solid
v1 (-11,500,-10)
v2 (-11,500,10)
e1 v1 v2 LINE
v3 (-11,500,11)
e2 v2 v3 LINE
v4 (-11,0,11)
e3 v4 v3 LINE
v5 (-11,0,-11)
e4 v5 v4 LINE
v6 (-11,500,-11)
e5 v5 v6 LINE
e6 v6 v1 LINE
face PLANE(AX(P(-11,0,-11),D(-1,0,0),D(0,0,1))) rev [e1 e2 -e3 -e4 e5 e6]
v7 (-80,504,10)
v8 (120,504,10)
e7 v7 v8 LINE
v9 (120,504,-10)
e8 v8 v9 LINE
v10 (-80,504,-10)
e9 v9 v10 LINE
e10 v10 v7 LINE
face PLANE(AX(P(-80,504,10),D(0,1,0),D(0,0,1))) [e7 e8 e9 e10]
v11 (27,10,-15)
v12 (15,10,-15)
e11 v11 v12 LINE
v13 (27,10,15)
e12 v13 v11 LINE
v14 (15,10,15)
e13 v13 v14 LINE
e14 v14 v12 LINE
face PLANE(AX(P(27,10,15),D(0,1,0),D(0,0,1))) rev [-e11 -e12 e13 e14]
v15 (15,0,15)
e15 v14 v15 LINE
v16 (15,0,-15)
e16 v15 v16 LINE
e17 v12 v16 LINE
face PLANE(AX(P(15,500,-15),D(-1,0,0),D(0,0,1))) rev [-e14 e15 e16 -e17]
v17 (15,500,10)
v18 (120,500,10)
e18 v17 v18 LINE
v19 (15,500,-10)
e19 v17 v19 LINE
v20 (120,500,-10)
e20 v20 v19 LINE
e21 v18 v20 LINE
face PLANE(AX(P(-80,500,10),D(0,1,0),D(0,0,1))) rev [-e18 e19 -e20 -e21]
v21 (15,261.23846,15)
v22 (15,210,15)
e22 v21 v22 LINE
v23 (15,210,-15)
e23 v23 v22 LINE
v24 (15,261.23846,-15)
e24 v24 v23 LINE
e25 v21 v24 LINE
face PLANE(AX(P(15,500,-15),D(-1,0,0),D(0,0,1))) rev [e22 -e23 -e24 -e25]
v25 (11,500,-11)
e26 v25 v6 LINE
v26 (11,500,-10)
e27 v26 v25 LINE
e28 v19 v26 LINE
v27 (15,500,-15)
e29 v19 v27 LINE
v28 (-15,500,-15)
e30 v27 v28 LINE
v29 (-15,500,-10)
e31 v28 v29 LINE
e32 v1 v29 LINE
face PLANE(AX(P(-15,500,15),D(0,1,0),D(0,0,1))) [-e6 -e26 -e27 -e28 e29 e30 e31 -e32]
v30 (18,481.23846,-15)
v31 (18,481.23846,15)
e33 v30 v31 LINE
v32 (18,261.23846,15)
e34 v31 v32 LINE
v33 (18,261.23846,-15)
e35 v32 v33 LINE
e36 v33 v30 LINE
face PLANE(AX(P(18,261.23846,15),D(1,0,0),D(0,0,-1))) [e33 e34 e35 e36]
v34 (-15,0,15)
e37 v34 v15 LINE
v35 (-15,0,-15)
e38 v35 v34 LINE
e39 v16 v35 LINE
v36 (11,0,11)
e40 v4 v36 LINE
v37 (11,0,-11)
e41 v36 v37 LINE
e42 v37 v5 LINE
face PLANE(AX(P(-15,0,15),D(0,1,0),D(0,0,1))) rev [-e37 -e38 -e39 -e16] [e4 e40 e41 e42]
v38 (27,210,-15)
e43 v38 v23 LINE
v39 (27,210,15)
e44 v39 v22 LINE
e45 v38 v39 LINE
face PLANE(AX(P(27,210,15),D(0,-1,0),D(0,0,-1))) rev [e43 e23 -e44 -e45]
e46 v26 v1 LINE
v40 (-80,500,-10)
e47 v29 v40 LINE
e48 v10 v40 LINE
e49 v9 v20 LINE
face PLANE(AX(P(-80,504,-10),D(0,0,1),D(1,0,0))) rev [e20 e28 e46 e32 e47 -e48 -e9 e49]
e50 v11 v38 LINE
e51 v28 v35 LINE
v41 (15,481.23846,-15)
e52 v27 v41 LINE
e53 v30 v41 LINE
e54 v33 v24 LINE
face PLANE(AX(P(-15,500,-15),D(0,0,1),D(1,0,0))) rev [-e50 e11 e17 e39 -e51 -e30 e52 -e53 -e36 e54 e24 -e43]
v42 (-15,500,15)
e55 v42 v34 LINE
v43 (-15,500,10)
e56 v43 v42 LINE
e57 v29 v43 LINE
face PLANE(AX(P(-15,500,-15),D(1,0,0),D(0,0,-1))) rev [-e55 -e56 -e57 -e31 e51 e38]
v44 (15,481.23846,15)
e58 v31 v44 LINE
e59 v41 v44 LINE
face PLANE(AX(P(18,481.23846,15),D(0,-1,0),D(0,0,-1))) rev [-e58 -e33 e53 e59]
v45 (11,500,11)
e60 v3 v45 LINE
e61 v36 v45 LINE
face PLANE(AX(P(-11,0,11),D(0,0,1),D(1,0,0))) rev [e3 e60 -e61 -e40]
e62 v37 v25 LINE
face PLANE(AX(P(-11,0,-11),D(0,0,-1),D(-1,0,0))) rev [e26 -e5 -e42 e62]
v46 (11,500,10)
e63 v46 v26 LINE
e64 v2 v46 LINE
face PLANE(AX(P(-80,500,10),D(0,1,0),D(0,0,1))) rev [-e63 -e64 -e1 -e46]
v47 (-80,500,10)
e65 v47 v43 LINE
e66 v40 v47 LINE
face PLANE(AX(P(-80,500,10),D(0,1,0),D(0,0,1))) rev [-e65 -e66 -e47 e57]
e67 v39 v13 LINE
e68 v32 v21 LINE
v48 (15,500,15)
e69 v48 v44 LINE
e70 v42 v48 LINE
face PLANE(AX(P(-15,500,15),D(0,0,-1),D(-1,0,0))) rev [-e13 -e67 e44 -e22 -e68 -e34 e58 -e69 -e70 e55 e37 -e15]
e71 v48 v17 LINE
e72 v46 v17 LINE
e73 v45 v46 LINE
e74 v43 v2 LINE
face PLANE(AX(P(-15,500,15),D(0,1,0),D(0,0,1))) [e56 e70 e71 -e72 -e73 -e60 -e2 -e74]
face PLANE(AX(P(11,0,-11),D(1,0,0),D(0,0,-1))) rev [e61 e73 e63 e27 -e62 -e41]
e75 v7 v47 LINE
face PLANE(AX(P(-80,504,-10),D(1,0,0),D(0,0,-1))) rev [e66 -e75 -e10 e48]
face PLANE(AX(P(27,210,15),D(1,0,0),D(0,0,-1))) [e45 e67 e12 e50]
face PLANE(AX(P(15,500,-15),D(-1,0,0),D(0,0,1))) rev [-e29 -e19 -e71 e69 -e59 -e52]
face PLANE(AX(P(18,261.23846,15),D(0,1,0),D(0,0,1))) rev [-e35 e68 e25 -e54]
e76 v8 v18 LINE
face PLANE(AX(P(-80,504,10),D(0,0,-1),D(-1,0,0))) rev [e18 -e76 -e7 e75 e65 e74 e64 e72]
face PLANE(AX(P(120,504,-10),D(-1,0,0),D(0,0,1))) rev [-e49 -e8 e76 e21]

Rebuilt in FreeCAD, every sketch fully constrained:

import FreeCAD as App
import Part
import Sketcher
from FreeCAD import Vector

doc = App.newDocument("Part")
body = doc.addObject("PartDesign::Body", "Body")

sketch1 = body.newObject("Sketcher::SketchObject", "Sketch")
sketch1.AttachmentSupport = (doc.getObject("XZ_Plane"), [""])
sketch1.MapMode = "FlatFace"
sketch1.addGeometry([
    Part.LineSegment(Vector(-15, -15, 0), Vector(-15, 15, 0)),
    Part.LineSegment(Vector(-15, 15, 0), Vector(15, 15, 0)),
    Part.LineSegment(Vector(15, 15, 0), Vector(15, -15, 0)),
    Part.LineSegment(Vector(15, -15, 0), Vector(-15, -15, 0)),
], False)
sketch1.addConstraint([
    Sketcher.Constraint("Coincident", 0, 2, 1, 1),
    Sketcher.Constraint("Coincident", 1, 2, 2, 1),
    Sketcher.Constraint("Coincident", 2, 2, 3, 1),
    Sketcher.Constraint("Coincident", 3, 2, 0, 1),
    Sketcher.Constraint("Vertical", 0),
    Sketcher.Constraint("Horizontal", 1),
    Sketcher.Constraint("Vertical", 2),
    Sketcher.Constraint("Horizontal", 3),
    Sketcher.Constraint("Symmetric", 0, 2, 2, 2, -1, 1),
    Sketcher.Constraint("Equal", 3, 0),
    Sketcher.Constraint("DistanceX", 1, 1, 1, 2, 30.0),
])
pad1 = body.newObject("PartDesign::Pad", "Pad")
pad1.Profile = sketch1
pad1.Length = 500
pad1.Reversed = True

sketch2 = body.newObject("Sketcher::SketchObject", "Sketch001")
sketch2.AttachmentSupport = (doc.getObject("XZ_Plane"), [""])
sketch2.MapMode = "FlatFace"
sketch2.AttachmentOffset = App.Placement(Vector(0, 0, -500), App.Rotation())
sketch2.addGeometry([
    Part.LineSegment(Vector(-11, -11, 0), Vector(-11, 11, 0)),
    Part.LineSegment(Vector(-11, 11, 0), Vector(11, 11, 0)),
    Part.LineSegment(Vector(11, 11, 0), Vector(11, -11, 0)),
    Part.LineSegment(Vector(11, -11, 0), Vector(-11, -11, 0)),
], False)
sketch2.addConstraint([
    Sketcher.Constraint("Coincident", 0, 2, 1, 1),
    Sketcher.Constraint("Coincident", 1, 2, 2, 1),
    Sketcher.Constraint("Coincident", 2, 2, 3, 1),
    Sketcher.Constraint("Coincident", 3, 2, 0, 1),
    Sketcher.Constraint("Vertical", 0),
    Sketcher.Constraint("Horizontal", 1),
    Sketcher.Constraint("Vertical", 2),
    Sketcher.Constraint("Horizontal", 3),
    Sketcher.Constraint("Symmetric", 0, 2, 2, 2, -1, 1),
    Sketcher.Constraint("Equal", 3, 0),
    Sketcher.Constraint("DistanceX", 1, 1, 1, 2, 22.0),
])
pocket1 = body.newObject("PartDesign::Pocket", "Pocket")
pocket1.Profile = sketch2
pocket1.Length = 500
pocket1.Reversed = True

sketch3 = body.newObject("Sketcher::SketchObject", "Sketch002")
sketch3.AttachmentSupport = (doc.getObject("XZ_Plane"), [""])
sketch3.MapMode = "FlatFace"
sketch3.AttachmentOffset = App.Placement(Vector(0, 0, -500), App.Rotation())
sketch3.addGeometry([
    Part.LineSegment(Vector(-80, -10, 0), Vector(-80, 10, 0)),
    Part.LineSegment(Vector(-80, 10, 0), Vector(120, 10, 0)),
    Part.LineSegment(Vector(120, 10, 0), Vector(120, -10, 0)),
    Part.LineSegment(Vector(120, -10, 0), Vector(-80, -10, 0)),
], False)
sketch3.addConstraint([
    Sketcher.Constraint("Coincident", 0, 2, 1, 1),
    Sketcher.Constraint("Coincident", 1, 2, 2, 1),
    Sketcher.Constraint("Coincident", 2, 2, 3, 1),
    Sketcher.Constraint("Coincident", 3, 2, 0, 1),
    Sketcher.Constraint("Vertical", 0),
    Sketcher.Constraint("Horizontal", 1),
    Sketcher.Constraint("Vertical", 2),
    Sketcher.Constraint("Horizontal", 3),
    Sketcher.Constraint("DistanceX", 1, 1, 1, 2, 200.0),
    Sketcher.Constraint("DistanceY", 0, 1, 0, 2, 20.0),
    Sketcher.Constraint("DistanceX", 0, 2, -1, 1, 80.0),
    Sketcher.Constraint("DistanceY", -1, 1, 0, 2, 10.0),
])
pad2 = body.newObject("PartDesign::Pad", "Pad001")
pad2.Profile = sketch3
pad2.Length = 4
pad2.Reversed = True

sketch4 = body.newObject("Sketcher::SketchObject", "Sketch003")
sketch4.AttachmentSupport = (doc.getObject("YZ_Plane"), [""])
sketch4.MapMode = "FlatFace"
sketch4.AttachmentOffset = App.Placement(Vector(0, 0, 15), App.Rotation())
sketch4.addGeometry([
    Part.LineSegment(Vector(210, 15, 0), Vector(10, 15, 0)),
    Part.LineSegment(Vector(10, 15, 0), Vector(10, -15, 0)),
    Part.LineSegment(Vector(10, -15, 0), Vector(210, -15, 0)),
    Part.LineSegment(Vector(210, -15, 0), Vector(210, 15, 0)),
], False)
sketch4.addConstraint([
    Sketcher.Constraint("Coincident", 0, 2, 1, 1),
    Sketcher.Constraint("Coincident", 1, 2, 2, 1),
    Sketcher.Constraint("Coincident", 2, 2, 3, 1),
    Sketcher.Constraint("Coincident", 3, 2, 0, 1),
    Sketcher.Constraint("Horizontal", 0),
    Sketcher.Constraint("Vertical", 1),
    Sketcher.Constraint("Horizontal", 2),
    Sketcher.Constraint("Vertical", 3),
    Sketcher.Constraint("DistanceX", 0, 2, 0, 1, 200.0),
    Sketcher.Constraint("DistanceY", 1, 2, 1, 1, 30.0),
    Sketcher.Constraint("DistanceX", -1, 1, 0, 2, 10.0),
    Sketcher.Constraint("DistanceY", -1, 1, 0, 2, 15.0),
])
pad3 = body.newObject("PartDesign::Pad", "Pad002")
pad3.Profile = sketch4
pad3.Length = 12

sketch5 = body.newObject("Sketcher::SketchObject", "Sketch004")
sketch5.AttachmentSupport = (doc.getObject("YZ_Plane"), [""])
sketch5.MapMode = "FlatFace"
sketch5.AttachmentOffset = App.Placement(Vector(0, 0, 15), App.Rotation())
sketch5.addGeometry([
    Part.LineSegment(Vector(481, 15, 0), Vector(261, 15, 0)),
    Part.LineSegment(Vector(261, 15, 0), Vector(261, -15, 0)),
    Part.LineSegment(Vector(261, -15, 0), Vector(481, -15, 0)),
    Part.LineSegment(Vector(481, -15, 0), Vector(481, 15, 0)),
], False)
sketch5.addConstraint([
    Sketcher.Constraint("Coincident", 0, 2, 1, 1),
    Sketcher.Constraint("Coincident", 1, 2, 2, 1),
    Sketcher.Constraint("Coincident", 2, 2, 3, 1),
    Sketcher.Constraint("Coincident", 3, 2, 0, 1),
    Sketcher.Constraint("Horizontal", 0),
    Sketcher.Constraint("Vertical", 1),
    Sketcher.Constraint("Horizontal", 2),
    Sketcher.Constraint("Vertical", 3),
    Sketcher.Constraint("DistanceX", 0, 2, 0, 1, 220.0),
    Sketcher.Constraint("DistanceY", 1, 2, 1, 1, 30.0),
    Sketcher.Constraint("DistanceY", -1, 1, 0, 2, 15.0),
    Sketcher.Constraint("DistanceX", -1, 1, 0, 2, 261.23846),
])
pad4 = body.newObject("PartDesign::Pad", "Pad003")
pad4.Profile = sketch5
pad4.Length = 3

doc.recompute()
